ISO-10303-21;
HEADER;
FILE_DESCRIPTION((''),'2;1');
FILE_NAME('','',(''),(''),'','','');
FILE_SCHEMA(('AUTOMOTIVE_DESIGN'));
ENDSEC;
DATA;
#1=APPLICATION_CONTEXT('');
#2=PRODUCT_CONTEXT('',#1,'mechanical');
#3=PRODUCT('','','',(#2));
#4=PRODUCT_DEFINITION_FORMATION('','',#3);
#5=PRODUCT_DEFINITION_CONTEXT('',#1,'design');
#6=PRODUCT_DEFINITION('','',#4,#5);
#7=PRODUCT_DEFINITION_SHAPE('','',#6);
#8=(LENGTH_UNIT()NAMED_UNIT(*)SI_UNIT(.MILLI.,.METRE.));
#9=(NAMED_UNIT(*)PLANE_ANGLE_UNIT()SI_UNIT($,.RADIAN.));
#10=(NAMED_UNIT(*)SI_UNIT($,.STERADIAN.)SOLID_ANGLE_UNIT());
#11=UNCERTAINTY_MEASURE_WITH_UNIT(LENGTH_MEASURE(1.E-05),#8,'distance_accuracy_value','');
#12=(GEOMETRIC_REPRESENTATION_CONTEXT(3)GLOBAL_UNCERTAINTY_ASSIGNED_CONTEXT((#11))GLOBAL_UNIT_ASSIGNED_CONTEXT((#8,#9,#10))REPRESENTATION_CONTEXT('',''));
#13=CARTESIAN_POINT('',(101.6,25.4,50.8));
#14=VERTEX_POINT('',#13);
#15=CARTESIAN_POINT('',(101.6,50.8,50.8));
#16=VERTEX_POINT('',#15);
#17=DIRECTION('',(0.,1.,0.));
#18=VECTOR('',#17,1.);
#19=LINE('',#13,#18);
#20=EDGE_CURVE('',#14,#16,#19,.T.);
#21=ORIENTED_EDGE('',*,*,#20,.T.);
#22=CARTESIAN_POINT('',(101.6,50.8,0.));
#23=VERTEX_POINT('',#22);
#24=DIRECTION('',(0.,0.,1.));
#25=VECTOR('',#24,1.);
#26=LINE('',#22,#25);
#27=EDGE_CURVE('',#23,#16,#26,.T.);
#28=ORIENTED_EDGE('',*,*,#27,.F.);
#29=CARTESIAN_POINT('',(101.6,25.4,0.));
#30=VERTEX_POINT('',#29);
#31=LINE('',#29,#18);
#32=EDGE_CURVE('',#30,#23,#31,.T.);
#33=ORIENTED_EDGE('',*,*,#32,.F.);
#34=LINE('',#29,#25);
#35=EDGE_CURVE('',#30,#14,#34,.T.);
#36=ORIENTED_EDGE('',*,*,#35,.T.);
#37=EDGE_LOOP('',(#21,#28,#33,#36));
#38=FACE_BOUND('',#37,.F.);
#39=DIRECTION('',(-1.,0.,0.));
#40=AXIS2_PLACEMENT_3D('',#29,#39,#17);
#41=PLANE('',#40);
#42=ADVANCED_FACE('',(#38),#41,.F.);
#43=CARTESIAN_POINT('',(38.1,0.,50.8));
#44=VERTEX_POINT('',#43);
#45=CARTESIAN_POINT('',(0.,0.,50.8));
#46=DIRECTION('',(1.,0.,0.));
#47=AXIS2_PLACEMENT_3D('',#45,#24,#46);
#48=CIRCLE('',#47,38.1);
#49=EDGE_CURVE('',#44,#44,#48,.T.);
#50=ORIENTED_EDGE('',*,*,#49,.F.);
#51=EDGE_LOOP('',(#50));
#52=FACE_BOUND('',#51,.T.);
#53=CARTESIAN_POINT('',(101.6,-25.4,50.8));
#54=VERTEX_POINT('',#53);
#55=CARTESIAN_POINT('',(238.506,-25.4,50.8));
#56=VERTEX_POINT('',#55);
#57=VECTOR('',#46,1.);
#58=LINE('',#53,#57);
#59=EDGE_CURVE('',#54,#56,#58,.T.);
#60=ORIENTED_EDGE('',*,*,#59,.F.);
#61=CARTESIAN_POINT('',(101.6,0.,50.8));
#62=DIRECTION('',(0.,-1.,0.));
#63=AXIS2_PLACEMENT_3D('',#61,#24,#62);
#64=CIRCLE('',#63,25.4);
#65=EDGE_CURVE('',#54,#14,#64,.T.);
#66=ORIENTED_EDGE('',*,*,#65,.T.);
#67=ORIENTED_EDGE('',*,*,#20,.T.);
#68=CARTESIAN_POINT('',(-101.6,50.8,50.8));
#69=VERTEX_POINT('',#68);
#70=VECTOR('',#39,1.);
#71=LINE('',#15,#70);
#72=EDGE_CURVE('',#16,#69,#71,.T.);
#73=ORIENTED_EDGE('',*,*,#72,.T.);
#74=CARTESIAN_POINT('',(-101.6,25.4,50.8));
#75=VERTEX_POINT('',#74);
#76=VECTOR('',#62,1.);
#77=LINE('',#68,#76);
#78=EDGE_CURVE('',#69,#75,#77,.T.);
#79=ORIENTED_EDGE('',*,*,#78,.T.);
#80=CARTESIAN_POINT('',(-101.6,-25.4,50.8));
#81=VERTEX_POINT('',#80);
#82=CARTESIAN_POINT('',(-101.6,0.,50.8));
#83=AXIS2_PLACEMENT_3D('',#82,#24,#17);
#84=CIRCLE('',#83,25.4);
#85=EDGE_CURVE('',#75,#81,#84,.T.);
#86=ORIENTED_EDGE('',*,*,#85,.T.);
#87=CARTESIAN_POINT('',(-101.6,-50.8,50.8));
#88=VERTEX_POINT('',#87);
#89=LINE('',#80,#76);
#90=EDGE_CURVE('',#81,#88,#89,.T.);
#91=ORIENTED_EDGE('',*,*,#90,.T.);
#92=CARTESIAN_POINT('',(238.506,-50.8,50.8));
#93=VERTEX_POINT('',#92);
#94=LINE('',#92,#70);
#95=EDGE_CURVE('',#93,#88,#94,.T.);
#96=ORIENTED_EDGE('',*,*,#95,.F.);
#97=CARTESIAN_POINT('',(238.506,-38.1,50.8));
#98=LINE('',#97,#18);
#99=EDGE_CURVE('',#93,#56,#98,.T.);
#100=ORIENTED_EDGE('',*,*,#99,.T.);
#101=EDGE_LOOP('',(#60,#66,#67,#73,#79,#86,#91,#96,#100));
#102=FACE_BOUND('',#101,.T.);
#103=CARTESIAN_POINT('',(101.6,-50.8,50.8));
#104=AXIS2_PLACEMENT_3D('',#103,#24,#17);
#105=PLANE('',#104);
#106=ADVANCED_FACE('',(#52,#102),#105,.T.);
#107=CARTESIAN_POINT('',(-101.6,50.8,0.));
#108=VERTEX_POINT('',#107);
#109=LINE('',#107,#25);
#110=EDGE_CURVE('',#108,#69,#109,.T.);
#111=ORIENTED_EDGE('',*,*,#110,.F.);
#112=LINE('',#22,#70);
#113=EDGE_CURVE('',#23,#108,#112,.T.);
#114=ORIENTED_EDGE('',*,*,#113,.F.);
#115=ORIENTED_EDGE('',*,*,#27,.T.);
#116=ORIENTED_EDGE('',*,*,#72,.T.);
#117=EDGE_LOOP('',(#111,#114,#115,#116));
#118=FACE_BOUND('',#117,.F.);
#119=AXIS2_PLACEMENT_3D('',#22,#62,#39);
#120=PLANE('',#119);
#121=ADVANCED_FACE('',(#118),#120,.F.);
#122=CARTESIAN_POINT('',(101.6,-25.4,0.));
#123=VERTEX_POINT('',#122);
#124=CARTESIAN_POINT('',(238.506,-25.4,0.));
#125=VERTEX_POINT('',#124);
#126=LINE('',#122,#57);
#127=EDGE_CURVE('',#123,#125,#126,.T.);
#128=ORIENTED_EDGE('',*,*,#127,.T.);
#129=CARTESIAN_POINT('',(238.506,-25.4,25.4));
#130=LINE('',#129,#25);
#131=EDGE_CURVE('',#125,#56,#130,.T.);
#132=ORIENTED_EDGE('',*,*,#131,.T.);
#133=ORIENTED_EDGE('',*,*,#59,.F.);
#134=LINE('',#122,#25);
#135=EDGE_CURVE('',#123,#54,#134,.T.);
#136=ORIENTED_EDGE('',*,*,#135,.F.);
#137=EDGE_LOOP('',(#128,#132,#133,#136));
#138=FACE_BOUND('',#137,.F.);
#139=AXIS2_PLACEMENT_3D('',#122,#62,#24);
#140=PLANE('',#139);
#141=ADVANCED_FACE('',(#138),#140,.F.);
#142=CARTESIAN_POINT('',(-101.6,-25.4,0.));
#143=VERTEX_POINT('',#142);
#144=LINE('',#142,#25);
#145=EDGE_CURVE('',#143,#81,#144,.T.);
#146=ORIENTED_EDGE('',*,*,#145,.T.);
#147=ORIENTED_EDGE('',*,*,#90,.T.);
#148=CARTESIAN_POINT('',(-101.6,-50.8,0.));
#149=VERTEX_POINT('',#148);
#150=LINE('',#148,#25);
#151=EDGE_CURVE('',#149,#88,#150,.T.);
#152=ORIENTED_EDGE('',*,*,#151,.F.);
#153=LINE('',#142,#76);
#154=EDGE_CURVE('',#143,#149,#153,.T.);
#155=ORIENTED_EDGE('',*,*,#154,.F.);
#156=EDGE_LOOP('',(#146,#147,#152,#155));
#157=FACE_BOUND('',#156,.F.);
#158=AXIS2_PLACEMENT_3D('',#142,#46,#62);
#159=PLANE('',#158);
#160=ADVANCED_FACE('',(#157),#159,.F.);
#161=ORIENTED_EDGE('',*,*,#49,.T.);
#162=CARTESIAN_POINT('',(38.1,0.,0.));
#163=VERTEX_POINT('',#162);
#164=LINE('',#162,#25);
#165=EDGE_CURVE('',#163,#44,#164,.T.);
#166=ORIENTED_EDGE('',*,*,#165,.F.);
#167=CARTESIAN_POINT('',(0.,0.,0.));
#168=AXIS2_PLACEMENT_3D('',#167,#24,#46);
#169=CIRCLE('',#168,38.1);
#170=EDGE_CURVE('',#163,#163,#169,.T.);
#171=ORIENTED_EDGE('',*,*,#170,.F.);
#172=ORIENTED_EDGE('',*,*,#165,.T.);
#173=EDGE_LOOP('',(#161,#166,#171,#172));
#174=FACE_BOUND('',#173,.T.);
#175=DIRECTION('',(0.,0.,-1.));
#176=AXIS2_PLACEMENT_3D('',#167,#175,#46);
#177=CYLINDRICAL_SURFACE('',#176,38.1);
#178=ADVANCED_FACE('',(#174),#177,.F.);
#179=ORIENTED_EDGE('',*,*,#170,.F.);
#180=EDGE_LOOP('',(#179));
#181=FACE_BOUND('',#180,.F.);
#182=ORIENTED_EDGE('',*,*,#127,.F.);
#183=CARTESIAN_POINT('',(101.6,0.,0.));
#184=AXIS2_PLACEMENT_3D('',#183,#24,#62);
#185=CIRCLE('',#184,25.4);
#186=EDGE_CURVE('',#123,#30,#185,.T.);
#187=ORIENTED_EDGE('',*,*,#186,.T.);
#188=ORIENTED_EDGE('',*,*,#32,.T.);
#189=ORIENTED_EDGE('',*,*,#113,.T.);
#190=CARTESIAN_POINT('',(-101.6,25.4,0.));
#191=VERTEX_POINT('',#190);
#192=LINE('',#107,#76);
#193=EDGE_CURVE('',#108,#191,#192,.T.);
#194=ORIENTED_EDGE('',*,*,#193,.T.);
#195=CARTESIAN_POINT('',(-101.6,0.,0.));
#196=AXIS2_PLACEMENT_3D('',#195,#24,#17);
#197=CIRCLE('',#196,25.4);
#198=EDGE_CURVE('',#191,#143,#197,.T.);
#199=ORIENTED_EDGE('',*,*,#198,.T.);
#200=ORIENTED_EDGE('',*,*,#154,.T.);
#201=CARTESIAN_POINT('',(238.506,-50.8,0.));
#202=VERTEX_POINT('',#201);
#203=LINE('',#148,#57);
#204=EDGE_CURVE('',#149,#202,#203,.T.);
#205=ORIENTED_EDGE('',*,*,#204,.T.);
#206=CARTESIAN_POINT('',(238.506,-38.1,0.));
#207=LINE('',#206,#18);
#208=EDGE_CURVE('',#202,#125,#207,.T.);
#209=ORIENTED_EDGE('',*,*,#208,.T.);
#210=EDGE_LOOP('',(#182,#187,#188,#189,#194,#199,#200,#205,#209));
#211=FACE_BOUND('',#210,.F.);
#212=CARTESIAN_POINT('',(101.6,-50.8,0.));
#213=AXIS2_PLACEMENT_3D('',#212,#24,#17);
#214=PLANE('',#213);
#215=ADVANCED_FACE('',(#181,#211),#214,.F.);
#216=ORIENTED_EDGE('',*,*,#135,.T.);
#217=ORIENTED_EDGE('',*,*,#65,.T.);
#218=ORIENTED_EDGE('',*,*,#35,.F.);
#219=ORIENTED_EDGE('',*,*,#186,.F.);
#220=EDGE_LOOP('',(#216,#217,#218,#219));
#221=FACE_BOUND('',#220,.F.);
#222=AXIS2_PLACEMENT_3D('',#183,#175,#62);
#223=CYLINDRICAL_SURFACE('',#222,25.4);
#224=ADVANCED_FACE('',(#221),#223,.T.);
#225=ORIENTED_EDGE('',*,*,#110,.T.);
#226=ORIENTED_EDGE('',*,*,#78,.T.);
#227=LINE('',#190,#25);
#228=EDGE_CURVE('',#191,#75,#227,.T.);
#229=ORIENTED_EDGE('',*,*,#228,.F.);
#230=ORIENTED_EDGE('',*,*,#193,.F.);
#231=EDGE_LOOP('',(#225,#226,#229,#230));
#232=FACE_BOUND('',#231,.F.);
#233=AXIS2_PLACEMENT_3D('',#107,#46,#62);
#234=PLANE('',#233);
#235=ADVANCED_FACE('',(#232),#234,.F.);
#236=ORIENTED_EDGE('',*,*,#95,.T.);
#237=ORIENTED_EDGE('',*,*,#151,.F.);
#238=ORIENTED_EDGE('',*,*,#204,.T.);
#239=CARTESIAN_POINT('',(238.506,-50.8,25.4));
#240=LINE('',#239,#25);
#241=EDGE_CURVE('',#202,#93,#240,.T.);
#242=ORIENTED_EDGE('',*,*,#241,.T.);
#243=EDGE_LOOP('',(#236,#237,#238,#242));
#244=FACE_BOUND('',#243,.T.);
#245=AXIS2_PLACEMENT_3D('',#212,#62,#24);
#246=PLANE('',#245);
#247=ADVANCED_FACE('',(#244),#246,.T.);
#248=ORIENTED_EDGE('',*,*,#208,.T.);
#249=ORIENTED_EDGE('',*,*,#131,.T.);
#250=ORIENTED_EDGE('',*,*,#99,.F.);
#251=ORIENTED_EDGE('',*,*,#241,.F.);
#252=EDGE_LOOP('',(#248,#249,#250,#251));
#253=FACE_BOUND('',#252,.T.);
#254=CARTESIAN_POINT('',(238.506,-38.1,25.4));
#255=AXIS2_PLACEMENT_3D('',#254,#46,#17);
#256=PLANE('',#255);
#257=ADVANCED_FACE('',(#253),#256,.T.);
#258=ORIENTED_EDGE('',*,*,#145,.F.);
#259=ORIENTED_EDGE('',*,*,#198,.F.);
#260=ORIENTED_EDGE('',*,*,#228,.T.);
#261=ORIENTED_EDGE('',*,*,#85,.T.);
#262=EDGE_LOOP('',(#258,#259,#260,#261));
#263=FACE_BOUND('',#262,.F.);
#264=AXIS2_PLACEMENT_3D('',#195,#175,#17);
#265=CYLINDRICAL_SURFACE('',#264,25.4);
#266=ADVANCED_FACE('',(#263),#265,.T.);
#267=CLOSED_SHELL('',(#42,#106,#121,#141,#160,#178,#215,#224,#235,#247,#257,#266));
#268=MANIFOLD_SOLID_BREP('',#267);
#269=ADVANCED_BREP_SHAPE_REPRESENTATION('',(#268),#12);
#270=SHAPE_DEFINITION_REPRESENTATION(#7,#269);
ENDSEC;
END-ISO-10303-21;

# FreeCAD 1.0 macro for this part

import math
import FreeCAD as App
import Part
import Sketcher

V = App.Vector
Q = App.Units.Quantity


def add_polygon(sketch, points):
    """Adds a closed chain of lines whose ends are joined by coincident constraints."""
    first, n = sketch.GeometryCount, len(points)
    for a, b in zip(points, points[1:] + points[:1]):
        sketch.addGeometry(Part.LineSegment(App.Vector(*a, 0), App.Vector(*b, 0)), False)
    for i in range(n):
        sketch.addConstraint(Sketcher.Constraint("Coincident", first + i, 2, first + (i + 1) % n, 1))

doc = App.newDocument("Part")
body = doc.addObject("PartDesign::Body", "Body")

# Sketch on XY plane
sketch1 = body.newObject("Sketcher::SketchObject", "Sketch")
sketch1.AttachmentSupport = (doc.getObject("XY_Plane"), [""])
sketch1.MapMode = "FlatFace"
sketch1.addGeometry([
    Part.LineSegment(V(102, 51, 0), V(-102, 51, 0)),  # 0
    Part.LineSegment(V(-102, 51, 0), V(-102, 25, 0)),  # 1
    Part.ArcOfCircle(Part.Circle(V(-102, 0, 0), V(0, 0, 1), 25), math.radians(90), math.radians(270)),  # 2
    Part.LineSegment(V(-102, -25, 0), V(-102, -51, 0)),  # 3
    Part.LineSegment(V(-102, -51, 0), V(102, -51, 0)),  # 4
    Part.LineSegment(V(102, -51, 0), V(102, -25, 0)),  # 5
    Part.ArcOfCircle(Part.Circle(V(102, 0, 0), V(0, 0, 1), 25), math.radians(-90), math.radians(90)),  # 6
    Part.LineSegment(V(102, 25, 0), V(102, 51, 0)),  # 7
    Part.Circle(V(0, 0, 0), V(0, 0, 1), 38),  # 8
], False)
sketch1.addConstraint([
    Sketcher.Constraint("Coincident", 0, 2, 1, 1),
    Sketcher.Constraint("Coincident", 1, 2, 2, 1),
    Sketcher.Constraint("Coincident", 2, 2, 3, 1),
    Sketcher.Constraint("Coincident", 3, 2, 4, 1),
    Sketcher.Constraint("Coincident", 4, 2, 5, 1),
    Sketcher.Constraint("Coincident", 5, 2, 6, 1),
    Sketcher.Constraint("Coincident", 6, 2, 7, 1),
    Sketcher.Constraint("Coincident", 7, 2, 0, 1),
    Sketcher.Constraint("Horizontal", 0),
    Sketcher.Constraint("Vertical", 1),
    Sketcher.Constraint("Vertical", 3),
    Sketcher.Constraint("Horizontal", 4),
    Sketcher.Constraint("Vertical", 5),
    Sketcher.Constraint("Vertical", 7),
    Sketcher.Constraint("Coincident", 8, 3, -1, 1),
    Sketcher.Constraint("Equal", 2, 6),
    Sketcher.Constraint("Symmetric", 2, 3, 6, 3, -1, 1),
    Sketcher.Constraint("Symmetric", 0, 2, 4, 2, -1, 1),
    Sketcher.Constraint("Symmetric", 2, 2, 5, 2, -2),
    Sketcher.Constraint("Vertical", 2, 3, 0, 2),
    Sketcher.Constraint("Vertical", 5, 2, 6, 2),
    Sketcher.Constraint("Diameter", 8, Q("3 in")),
    Sketcher.Constraint("Radius", 2, Q("1 in")),
    Sketcher.Constraint("DistanceX", 0, 2, 0, 1, Q("8 in")),
    Sketcher.Constraint("DistanceY", 1, 2, 1, 1, Q("1 in")),
])
pad1 = body.newObject("PartDesign::Pad", "Pad")
pad1.Profile = sketch1
pad1.Length = Q("2 in")

# Sketch on YZ plane
sketch2 = body.newObject("Sketcher::SketchObject", "Sketch001")
sketch2.AttachmentSupport = (doc.getObject("YZ_Plane"), [""])
sketch2.MapMode = "FlatFace"
sketch2.AttachmentOffset = App.Placement(V(0, 0, 4 * 25.4), App.Rotation())
add_polygon(sketch2, [(-51, 51), (-51, 0), (-25, 0), (-25, 51)])  # lines 0-3
sketch2.addConstraint([
    Sketcher.Constraint("Vertical", 0),
    Sketcher.Constraint("Horizontal", 1),
    Sketcher.Constraint("Vertical", 2),
    Sketcher.Constraint("Horizontal", 3),
    Sketcher.Constraint("PointOnObject", 0, 2, -1),
    Sketcher.Constraint("DistanceX", 1, 1, 1, 2, Q("1 in")),
    Sketcher.Constraint("DistanceY", 0, 2, 0, 1, Q("2 in")),
    Sketcher.Constraint("DistanceX", 0, 2, -1, 1, Q("2 in")),
])
pad2 = body.newObject("PartDesign::Pad", "Pad001")
pad2.Profile = sketch2
pad2.Length = Q("5.39 in")

doc.recompute()
